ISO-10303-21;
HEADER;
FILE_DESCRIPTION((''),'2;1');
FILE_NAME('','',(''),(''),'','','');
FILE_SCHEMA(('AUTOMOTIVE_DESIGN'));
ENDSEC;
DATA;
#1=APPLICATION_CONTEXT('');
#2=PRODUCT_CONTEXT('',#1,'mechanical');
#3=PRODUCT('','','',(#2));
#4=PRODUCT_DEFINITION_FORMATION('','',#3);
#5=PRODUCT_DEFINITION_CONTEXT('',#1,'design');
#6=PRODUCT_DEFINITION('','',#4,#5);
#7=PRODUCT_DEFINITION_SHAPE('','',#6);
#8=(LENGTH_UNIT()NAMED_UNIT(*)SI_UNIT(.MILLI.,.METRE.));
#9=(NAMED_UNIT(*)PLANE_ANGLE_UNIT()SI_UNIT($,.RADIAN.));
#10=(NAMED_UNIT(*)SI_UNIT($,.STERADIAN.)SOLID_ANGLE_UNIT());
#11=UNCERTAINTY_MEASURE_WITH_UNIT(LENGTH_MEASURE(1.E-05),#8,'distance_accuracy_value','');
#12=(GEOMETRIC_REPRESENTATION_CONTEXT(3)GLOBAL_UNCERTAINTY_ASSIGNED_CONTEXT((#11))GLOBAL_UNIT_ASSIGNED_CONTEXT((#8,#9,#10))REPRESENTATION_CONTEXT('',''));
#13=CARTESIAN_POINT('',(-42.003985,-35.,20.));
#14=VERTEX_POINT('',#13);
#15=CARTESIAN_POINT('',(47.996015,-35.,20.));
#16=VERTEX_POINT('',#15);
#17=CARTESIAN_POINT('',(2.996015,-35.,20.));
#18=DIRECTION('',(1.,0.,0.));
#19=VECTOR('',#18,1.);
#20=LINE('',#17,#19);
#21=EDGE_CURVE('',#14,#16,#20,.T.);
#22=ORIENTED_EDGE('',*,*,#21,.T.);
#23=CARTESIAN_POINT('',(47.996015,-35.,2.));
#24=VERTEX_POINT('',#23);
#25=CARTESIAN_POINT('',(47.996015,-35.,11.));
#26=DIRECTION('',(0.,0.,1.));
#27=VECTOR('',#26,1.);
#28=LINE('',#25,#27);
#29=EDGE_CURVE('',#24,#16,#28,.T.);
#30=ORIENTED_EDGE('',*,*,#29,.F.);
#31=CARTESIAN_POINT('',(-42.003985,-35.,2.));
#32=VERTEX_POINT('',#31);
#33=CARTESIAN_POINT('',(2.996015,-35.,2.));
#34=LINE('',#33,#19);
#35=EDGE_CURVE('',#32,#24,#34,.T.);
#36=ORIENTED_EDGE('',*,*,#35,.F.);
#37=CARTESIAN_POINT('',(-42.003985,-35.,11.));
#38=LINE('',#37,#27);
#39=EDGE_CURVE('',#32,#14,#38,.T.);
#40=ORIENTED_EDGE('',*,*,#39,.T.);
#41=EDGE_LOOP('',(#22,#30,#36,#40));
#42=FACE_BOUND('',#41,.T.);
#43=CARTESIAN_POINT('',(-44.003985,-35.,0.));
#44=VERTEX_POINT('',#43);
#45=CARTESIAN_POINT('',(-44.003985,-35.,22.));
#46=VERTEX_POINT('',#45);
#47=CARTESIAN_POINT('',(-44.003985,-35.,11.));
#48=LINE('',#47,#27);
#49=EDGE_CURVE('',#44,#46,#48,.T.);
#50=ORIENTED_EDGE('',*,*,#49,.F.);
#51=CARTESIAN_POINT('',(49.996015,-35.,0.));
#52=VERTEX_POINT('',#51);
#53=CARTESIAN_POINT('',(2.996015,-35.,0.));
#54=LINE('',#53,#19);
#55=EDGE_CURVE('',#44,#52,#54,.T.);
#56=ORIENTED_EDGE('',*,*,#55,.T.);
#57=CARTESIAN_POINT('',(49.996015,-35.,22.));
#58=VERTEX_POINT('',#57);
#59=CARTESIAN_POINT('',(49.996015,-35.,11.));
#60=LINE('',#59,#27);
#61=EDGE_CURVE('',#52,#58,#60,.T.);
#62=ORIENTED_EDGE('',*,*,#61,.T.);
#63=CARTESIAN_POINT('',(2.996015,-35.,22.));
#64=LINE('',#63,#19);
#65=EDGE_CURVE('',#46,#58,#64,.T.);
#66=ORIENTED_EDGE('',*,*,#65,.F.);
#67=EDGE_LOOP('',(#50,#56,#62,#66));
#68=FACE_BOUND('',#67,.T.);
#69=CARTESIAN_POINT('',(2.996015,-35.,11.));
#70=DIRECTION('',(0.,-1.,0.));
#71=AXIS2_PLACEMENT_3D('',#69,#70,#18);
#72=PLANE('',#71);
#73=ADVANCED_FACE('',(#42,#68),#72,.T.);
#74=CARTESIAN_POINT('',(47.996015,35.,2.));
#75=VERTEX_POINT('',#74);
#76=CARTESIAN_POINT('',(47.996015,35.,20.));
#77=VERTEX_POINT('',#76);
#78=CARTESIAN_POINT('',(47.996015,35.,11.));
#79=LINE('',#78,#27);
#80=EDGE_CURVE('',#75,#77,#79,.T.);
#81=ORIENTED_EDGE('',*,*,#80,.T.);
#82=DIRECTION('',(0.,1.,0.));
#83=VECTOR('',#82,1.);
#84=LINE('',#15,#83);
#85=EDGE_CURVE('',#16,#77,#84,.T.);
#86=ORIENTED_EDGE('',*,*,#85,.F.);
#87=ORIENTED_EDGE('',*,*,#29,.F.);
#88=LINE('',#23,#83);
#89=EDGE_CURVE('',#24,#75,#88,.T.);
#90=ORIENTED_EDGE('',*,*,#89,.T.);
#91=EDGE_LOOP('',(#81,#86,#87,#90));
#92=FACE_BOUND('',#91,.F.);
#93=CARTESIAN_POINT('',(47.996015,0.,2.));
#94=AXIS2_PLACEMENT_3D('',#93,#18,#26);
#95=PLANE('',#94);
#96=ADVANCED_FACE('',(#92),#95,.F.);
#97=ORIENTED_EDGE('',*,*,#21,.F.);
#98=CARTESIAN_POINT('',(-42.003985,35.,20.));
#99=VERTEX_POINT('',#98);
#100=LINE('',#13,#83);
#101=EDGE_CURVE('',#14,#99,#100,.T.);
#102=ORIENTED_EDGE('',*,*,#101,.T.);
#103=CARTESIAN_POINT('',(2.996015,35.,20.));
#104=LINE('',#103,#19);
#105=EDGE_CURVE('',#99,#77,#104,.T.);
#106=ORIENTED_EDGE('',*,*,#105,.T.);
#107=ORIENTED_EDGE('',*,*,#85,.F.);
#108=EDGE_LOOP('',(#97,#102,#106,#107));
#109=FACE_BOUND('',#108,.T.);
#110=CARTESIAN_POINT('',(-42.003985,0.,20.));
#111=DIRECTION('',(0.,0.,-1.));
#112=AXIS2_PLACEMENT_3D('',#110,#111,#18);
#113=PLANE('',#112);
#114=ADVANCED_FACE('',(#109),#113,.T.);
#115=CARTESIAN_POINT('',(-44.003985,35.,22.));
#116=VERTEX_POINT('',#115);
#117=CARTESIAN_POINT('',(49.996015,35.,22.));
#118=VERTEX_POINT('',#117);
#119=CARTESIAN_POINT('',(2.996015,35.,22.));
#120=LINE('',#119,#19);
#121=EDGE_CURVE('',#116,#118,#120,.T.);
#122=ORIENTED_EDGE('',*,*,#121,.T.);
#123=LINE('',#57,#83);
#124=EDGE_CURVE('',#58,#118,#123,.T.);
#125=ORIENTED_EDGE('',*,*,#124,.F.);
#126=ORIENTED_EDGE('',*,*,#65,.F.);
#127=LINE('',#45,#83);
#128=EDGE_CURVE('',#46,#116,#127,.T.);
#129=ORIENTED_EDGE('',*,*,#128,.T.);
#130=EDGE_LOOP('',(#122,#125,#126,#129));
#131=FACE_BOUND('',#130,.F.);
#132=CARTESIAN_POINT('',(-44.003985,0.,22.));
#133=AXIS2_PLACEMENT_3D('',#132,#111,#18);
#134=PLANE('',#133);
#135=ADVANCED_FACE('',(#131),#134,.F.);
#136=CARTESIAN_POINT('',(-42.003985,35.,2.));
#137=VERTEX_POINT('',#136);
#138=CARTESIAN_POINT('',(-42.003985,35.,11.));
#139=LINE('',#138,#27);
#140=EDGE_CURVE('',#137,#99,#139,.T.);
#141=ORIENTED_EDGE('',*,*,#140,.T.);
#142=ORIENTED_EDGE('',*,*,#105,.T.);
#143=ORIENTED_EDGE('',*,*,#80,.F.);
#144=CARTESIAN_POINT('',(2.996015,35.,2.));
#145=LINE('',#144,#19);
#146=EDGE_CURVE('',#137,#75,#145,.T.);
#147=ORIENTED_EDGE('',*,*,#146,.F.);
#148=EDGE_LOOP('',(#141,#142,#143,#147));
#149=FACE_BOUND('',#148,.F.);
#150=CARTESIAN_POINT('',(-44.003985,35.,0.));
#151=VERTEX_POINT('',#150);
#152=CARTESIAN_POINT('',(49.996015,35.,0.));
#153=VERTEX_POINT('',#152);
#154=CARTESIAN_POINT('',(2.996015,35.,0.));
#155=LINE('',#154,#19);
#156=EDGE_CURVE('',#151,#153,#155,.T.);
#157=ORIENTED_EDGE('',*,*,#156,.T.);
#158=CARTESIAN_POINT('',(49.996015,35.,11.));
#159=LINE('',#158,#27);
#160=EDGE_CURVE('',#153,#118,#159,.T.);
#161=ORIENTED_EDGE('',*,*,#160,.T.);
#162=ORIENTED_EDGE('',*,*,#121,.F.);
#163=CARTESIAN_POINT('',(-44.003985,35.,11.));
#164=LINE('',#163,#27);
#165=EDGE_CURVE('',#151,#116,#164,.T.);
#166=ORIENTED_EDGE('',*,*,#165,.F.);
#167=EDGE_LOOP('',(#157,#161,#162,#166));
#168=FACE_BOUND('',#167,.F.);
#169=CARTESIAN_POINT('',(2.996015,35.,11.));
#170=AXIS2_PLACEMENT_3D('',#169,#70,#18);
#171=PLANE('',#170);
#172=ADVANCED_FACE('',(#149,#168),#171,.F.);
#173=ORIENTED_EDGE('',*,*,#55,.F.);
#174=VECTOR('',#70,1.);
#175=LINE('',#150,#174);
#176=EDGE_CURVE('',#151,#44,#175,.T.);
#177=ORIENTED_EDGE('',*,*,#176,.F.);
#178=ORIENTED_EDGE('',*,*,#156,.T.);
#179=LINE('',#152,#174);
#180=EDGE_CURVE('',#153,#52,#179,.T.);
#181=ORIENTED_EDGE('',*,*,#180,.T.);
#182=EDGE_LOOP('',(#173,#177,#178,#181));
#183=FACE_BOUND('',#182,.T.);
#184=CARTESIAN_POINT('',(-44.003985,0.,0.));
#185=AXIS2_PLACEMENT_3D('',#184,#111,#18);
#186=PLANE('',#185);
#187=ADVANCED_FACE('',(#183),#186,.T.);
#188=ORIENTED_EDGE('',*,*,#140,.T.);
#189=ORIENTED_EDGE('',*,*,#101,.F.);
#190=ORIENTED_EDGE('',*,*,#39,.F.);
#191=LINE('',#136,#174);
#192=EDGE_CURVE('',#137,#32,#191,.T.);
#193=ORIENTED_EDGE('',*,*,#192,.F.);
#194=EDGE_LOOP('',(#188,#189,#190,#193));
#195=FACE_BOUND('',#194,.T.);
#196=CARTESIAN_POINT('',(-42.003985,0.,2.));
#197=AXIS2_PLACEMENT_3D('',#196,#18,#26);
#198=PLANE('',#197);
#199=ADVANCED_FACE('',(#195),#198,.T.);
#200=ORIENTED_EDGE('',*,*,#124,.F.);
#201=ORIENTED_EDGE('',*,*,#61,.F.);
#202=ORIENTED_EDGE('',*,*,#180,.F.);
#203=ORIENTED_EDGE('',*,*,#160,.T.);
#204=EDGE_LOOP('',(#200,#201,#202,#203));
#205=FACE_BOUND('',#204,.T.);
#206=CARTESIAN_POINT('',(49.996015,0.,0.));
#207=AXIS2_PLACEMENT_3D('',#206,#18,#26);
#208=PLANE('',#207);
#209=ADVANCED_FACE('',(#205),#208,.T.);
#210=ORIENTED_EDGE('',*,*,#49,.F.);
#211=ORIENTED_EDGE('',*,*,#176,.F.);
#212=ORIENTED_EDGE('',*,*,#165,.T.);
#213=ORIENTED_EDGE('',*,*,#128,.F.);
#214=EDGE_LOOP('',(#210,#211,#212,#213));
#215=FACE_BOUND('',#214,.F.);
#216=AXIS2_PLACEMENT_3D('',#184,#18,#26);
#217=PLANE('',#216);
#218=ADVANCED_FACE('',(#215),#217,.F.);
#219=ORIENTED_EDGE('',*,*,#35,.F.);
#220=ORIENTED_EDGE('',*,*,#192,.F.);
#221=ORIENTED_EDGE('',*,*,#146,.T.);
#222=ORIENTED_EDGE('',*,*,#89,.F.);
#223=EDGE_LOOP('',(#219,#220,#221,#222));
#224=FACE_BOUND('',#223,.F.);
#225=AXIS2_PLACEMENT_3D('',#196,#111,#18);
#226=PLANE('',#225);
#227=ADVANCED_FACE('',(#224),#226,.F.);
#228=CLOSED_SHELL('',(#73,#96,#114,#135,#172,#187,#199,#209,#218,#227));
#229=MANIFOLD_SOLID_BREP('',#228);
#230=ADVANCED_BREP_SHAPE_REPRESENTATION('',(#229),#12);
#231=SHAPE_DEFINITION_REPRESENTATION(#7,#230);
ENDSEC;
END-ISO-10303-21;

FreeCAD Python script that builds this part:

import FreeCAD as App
import Part
import Sketcher
Q = App.Units.Quantity


def add_polygon(sketch, points):
    """Adds a closed chain of lines whose ends are joined by coincident constraints."""
    first, n = sketch.GeometryCount, len(points)
    for a, b in zip(points, points[1:] + points[:1]):
        sketch.addGeometry(Part.LineSegment(App.Vector(*a, 0), App.Vector(*b, 0)), False)
    for i in range(n):
        sketch.addConstraint(Sketcher.Constraint("Coincident", first + i, 2, first + (i + 1) % n, 1))

doc = App.newDocument("Part")
body = doc.addObject("PartDesign::Body", "Body")

# Sketch on XZ plane
sketch1 = body.newObject("Sketcher::SketchObject", "Sketch")
sketch1.AttachmentSupport = (doc.getObject("XZ_Plane"), [""])
sketch1.MapMode = "FlatFace"
add_polygon(sketch1, [(-44, 22), (-44, 0), (50, 0), (50, 22)])  # lines 0-3
add_polygon(sketch1, [(48, 2), (-42, 2), (-42, 20), (48, 20)])  # lines 4-7
sketch1.addConstraint([
    Sketcher.Constraint("Vertical", 0),
    Sketcher.Constraint("Horizontal", 1),
    Sketcher.Constraint("Vertical", 2),
    Sketcher.Constraint("Horizontal", 3),
    Sketcher.Constraint("Horizontal", 4),
    Sketcher.Constraint("Vertical", 5),
    Sketcher.Constraint("Horizontal", 6),
    Sketcher.Constraint("Vertical", 7),
    Sketcher.Constraint("PointOnObject", 0, 2, -1),
    Sketcher.Constraint("DistanceX", 1, 1, 1, 2, Q("94 mm")),
    Sketcher.Constraint("DistanceX", 4, 2, 4, 1, Q("90 mm")),
    Sketcher.Constraint("DistanceY", 0, 2, 0, 1, Q("22 mm")),
    Sketcher.Constraint("DistanceY", 5, 1, 5, 2, Q("18 mm")),
    Sketcher.Constraint("DistanceY", -1, 1, 4, 2, Q("2 mm")),
    Sketcher.Constraint("DistanceX", 0, 2, 4, 2, Q("2 mm")),
    Sketcher.Constraint("DistanceX", 0, 2, -1, 1, Q("44.003985 mm")),
])
pad1 = body.newObject("PartDesign::Pad", "Pad")
pad1.Profile = sketch1
pad1.Length = 70
pad1.Midplane = True

doc.recompute()
